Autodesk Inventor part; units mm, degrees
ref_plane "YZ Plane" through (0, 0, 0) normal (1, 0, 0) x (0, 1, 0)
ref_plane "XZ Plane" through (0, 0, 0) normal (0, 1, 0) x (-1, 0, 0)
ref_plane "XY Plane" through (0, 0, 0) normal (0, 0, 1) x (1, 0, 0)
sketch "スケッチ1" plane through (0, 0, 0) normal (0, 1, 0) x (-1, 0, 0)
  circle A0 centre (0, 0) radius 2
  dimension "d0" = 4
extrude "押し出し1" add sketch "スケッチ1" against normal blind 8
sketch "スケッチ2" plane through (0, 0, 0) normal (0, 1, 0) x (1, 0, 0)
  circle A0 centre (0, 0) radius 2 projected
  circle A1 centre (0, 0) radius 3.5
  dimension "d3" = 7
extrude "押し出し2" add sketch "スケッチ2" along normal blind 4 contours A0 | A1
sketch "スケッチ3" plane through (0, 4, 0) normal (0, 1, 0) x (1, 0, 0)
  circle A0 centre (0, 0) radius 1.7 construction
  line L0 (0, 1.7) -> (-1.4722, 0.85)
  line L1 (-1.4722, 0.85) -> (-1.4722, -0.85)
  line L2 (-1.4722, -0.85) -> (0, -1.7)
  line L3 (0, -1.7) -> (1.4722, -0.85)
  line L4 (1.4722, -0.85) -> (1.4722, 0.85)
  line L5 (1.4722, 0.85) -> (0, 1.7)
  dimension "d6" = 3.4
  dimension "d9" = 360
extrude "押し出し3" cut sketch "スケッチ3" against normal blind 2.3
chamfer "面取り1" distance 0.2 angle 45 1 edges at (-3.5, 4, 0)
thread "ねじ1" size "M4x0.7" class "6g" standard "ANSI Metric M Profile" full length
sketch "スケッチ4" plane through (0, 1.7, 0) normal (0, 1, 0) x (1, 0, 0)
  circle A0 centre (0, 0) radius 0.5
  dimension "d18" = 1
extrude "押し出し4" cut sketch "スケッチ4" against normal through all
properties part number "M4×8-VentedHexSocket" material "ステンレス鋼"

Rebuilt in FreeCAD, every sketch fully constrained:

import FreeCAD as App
import Part
import Sketcher
from FreeCAD import Vector
Q = App.Units.Quantity


def edges_at(feature, points):
    """Names of the edges that pass closest to the given points."""
    edges = feature.Shape.Edges
    near = lambda p: min(range(len(edges)), key=lambda i: edges[i].distToShape(Part.Vertex(*p))[0])
    return sorted({f"Edge{near(p) + 1}" for p in points})

doc = App.newDocument("Part")
body = doc.addObject("PartDesign::Body", "Body")

sketch1 = body.newObject("Sketcher::SketchObject", "Sketch")
sketch1.AttachmentSupport = (doc.getObject("XZ_Plane"), [""])
sketch1.MapMode = "FlatFace"
sketch1.addGeometry(Part.Circle(Vector(0, 0, 0), Vector(0, 0, 1), 2), False)
sketch1.addConstraint([
    Sketcher.Constraint("Coincident", 0, 3, -1, 1),
    Sketcher.Constraint("Diameter", 0, 4.0),
])
pad1 = body.newObject("PartDesign::Pad", "Pad")
pad1.Profile = sketch1
pad1.Length = 8

sketch2 = body.newObject("Sketcher::SketchObject", "Sketch001")
sketch2.AttachmentSupport = (doc.getObject("XZ_Plane"), [""])
sketch2.MapMode = "FlatFace"
sketch2.addGeometry(Part.Circle(Vector(0, 0, 0), Vector(0, 0, 1), 3.5), False)
sketch2.addConstraint([
    Sketcher.Constraint("Coincident", 0, 3, -1, 1),
    Sketcher.Constraint("Diameter", 0, 7.0),
])
pad2 = body.newObject("PartDesign::Pad", "Pad001")
pad2.Profile = sketch2
pad2.Length = 4
pad2.Reversed = True

sketch3 = body.newObject("Sketcher::SketchObject", "Sketch002")
sketch3.AttachmentSupport = (doc.getObject("XZ_Plane"), [""])
sketch3.MapMode = "FlatFace"
sketch3.AttachmentOffset = App.Placement(Vector(0, 0, -4), App.Rotation())
sketch3.addGeometry([
    Part.LineSegment(Vector(1.5, -0.8, 0), Vector(0, -1.7, 0)),
    Part.LineSegment(Vector(0, -1.7, 0), Vector(-1.5, -0.8, 0)),
    Part.LineSegment(Vector(-1.5, -0.8, 0), Vector(-1.5, 0.8, 0)),
    Part.LineSegment(Vector(-1.5, 0.8, 0), Vector(0, 1.7, 0)),
    Part.LineSegment(Vector(0, 1.7, 0), Vector(1.5, 0.8, 0)),
    Part.LineSegment(Vector(1.5, 0.8, 0), Vector(1.5, -0.8, 0)),
], False)
sketch3.addConstraint([
    Sketcher.Constraint("Coincident", 0, 2, 1, 1),
    Sketcher.Constraint("Coincident", 1, 2, 2, 1),
    Sketcher.Constraint("Coincident", 2, 2, 3, 1),
    Sketcher.Constraint("Coincident", 3, 2, 4, 1),
    Sketcher.Constraint("Coincident", 4, 2, 5, 1),
    Sketcher.Constraint("Coincident", 5, 2, 0, 1),
    Sketcher.Constraint("Vertical", 2),
    Sketcher.Constraint("Vertical", 5),
    Sketcher.Constraint("Symmetric", 0, 2, 3, 2, -1, 1),
    Sketcher.Constraint("Symmetric", 1, 2, 4, 2, -1, 1),
    Sketcher.Constraint("PointOnObject", 0, 2, -2),
    Sketcher.Constraint("Parallel", 0, 3),
    Sketcher.Constraint("Horizontal", 2, 2, 4, 2),
    Sketcher.Constraint("DistanceY", 0, 2, 3, 2, 3.4),
    Sketcher.Constraint("Angle", 0, Q("-149.9993 deg")),
    Sketcher.Constraint("DistanceY", 2, 1, 2, 2, 1.7),
])
pocket1 = body.newObject("PartDesign::Pocket", "Pocket")
pocket1.Profile = sketch3
pocket1.Length = 2.3
pocket1.Reversed = True
doc.recompute()

chamfer = body.newObject("PartDesign::Chamfer", "Chamfer")
chamfer.Base = (pocket1, edges_at(pocket1, [(-3.5, 4, 0)]))
chamfer.Size = 0.2

sketch4 = body.newObject("Sketcher::SketchObject", "Sketch003")
sketch4.AttachmentSupport = (doc.getObject("XZ_Plane"), [""])
sketch4.MapMode = "FlatFace"
sketch4.AttachmentOffset = App.Placement(Vector(0, 0, -1.7), App.Rotation())
sketch4.addGeometry(Part.Circle(Vector(0, 0, 0), Vector(0, 0, 1), 0.5), False)
sketch4.addConstraint([
    Sketcher.Constraint("Coincident", 0, 3, -1, 1),
    Sketcher.Constraint("Diameter", 0, 1.0),
])
pocket2 = body.newObject("PartDesign::Pocket", "Pocket001")
pocket2.Profile = sketch4
pocket2.Type = "ThroughAll"
pocket2.Reversed = True

doc.recompute()
